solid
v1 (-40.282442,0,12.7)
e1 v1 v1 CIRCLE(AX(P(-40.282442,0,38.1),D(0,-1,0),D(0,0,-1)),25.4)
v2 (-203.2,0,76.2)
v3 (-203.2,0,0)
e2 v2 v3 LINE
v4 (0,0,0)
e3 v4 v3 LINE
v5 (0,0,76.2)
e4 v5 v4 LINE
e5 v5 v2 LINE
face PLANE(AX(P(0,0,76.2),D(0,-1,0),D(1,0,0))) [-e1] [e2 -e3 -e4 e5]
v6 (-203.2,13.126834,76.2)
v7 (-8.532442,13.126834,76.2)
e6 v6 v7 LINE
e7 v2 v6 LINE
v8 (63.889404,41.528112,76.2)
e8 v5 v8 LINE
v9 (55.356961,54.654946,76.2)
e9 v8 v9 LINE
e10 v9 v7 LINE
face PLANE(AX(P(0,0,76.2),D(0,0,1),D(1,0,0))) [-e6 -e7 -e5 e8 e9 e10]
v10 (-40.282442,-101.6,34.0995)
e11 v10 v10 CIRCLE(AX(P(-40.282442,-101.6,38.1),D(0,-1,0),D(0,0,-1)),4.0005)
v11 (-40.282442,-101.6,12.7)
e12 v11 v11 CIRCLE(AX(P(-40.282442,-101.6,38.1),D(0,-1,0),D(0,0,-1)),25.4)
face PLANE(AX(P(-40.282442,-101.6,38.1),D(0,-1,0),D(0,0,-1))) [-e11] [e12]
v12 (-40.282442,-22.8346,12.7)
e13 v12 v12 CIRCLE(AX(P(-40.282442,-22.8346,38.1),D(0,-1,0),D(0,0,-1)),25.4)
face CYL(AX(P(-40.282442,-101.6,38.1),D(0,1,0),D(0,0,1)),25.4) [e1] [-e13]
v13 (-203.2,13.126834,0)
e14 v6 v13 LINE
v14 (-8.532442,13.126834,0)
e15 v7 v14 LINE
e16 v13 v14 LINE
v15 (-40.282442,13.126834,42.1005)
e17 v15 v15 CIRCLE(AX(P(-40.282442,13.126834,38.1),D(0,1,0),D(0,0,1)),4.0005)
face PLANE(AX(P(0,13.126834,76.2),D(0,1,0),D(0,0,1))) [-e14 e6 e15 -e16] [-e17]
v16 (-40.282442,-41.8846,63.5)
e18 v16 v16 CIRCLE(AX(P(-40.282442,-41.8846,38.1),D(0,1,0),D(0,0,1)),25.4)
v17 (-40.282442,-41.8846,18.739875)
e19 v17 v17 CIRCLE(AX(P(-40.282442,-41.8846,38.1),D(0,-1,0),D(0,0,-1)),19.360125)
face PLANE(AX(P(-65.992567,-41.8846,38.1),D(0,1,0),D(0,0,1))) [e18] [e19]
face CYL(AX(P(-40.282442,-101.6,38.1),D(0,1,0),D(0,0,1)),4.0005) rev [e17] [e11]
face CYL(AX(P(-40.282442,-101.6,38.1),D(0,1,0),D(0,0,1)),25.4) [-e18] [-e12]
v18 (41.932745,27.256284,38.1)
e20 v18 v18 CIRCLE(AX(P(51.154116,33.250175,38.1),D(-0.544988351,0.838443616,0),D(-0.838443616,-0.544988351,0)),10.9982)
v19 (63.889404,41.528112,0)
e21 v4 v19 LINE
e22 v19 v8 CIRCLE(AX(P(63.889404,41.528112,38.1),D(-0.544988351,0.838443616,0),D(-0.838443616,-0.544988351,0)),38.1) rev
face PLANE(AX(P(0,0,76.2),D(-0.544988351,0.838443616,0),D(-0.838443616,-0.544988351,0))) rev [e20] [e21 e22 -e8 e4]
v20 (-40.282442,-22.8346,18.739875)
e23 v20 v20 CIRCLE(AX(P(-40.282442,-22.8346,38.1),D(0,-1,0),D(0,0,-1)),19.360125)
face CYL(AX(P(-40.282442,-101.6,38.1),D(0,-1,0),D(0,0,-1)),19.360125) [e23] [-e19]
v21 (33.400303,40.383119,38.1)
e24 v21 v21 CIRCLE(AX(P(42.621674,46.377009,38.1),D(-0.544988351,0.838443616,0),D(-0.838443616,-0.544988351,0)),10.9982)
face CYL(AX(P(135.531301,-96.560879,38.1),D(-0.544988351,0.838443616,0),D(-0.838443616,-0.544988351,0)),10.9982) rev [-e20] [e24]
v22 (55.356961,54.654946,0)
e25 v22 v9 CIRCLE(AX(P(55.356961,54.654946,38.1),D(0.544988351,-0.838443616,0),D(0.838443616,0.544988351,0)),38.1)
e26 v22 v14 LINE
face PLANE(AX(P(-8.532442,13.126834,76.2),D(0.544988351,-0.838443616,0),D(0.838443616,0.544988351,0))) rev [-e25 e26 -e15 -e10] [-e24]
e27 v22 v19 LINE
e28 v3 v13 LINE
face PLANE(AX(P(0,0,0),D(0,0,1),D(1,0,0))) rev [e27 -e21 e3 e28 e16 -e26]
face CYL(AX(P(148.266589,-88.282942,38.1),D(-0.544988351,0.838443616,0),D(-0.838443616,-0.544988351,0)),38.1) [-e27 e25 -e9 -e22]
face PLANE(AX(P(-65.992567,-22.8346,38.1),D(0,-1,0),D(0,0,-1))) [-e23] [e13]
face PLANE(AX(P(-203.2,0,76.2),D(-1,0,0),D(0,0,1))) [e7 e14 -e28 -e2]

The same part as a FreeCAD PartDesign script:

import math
import FreeCAD as App
import Part
import Sketcher
Q = App.Units.Quantity

doc = App.newDocument("Part")
body = doc.addObject("PartDesign::Body", "Body")

sketch1 = body.newObject("Sketcher::SketchObject", "Sketch")
sketch1.AttachmentSupport = (doc.getObject("XY_Plane"), [""])
sketch1.MapMode = "FlatFace"
sketch1.addGeometry(Part.LineSegment(App.Vector(-9, 13, 0), App.Vector(-203, 13, 0)), False)
sketch1.addGeometry(Part.LineSegment(App.Vector(-203, 13, 0), App.Vector(-203, 0, 0)), False)
sketch1.addGeometry(Part.LineSegment(App.Vector(-203, 0, 0), App.Vector(0, 0, 0)), False)
sketch1.addGeometry(Part.LineSegment(App.Vector(0, 0, 0), App.Vector(128, 83, 0)), False)
sketch1.addGeometry(Part.LineSegment(App.Vector(128, 83, 0), App.Vector(119, 96, 0)), False)
sketch1.addGeometry(Part.LineSegment(App.Vector(119, 96, 0), App.Vector(-9, 13, 0)), False)
sketch1.addConstraint(Sketcher.Constraint("Coincident", 0, 2, 1, 1))
sketch1.addConstraint(Sketcher.Constraint("Coincident", 1, 2, 2, 1))
sketch1.addConstraint(Sketcher.Constraint("Coincident", 2, 2, 3, 1))
sketch1.addConstraint(Sketcher.Constraint("Coincident", 3, 2, 4, 1))
sketch1.addConstraint(Sketcher.Constraint("Coincident", 4, 2, 5, 1))
sketch1.addConstraint(Sketcher.Constraint("Coincident", 5, 2, 0, 1))
sketch1.addConstraint(Sketcher.Constraint("Horizontal", 0))
sketch1.addConstraint(Sketcher.Constraint("Vertical", 1))
sketch1.addConstraint(Sketcher.Constraint("Horizontal", 2))
sketch1.addConstraint(Sketcher.Constraint("Coincident", 2, 2, -1, 1))
sketch1.addConstraint(Sketcher.Constraint("Perpendicular", 3, 4))
sketch1.addConstraint(Sketcher.Constraint("Perpendicular", 4, 5))
sketch1.addConstraint(Sketcher.Constraint("Equal", 3, 5))
sketch1.addConstraint(Sketcher.Constraint("DistanceX", 2, 1, 2, 2, Q("8 in")))
sketch1.addConstraint(Sketcher.Constraint("Distance", 3, Q("6 in")))
sketch1.addConstraint(Sketcher.Constraint("Distance", 4, 15.656192))
sketch1.addConstraint(Sketcher.Constraint("DistanceX", 0, 2, 0, 1, 194.667558))
pad1 = body.newObject("PartDesign::Pad", "Pad")
pad1.Profile = sketch1
pad1.Length = Q("3 in")

sketch2 = body.newObject("Sketcher::SketchObject", "Sketch001")
sketch2.AttachmentSupport = (doc.getObject("XZ_Plane"), [""])
sketch2.MapMode = "FlatFace"
sketch2.addGeometry(Part.Circle(App.Vector(-40.3, 38.1, 0), App.Vector(0, 0, 1), 25.4), False)
sketch2.addGeometry(Part.Circle(App.Vector(-40.3, 38.1, 0), App.Vector(0, 0, 1), 4), False)
sketch2.addConstraint(Sketcher.Constraint("Coincident", 1, 3, 0, 3))
sketch2.addConstraint(Sketcher.Constraint("Diameter", 0, Q("2 in")))
sketch2.addConstraint(Sketcher.Constraint("Diameter", 1, Q("0.315 in")))
sketch2.addConstraint(Sketcher.Constraint("DistanceY", -1, 1, 0, 3, Q("1.5 in")))
sketch2.addConstraint(Sketcher.Constraint("DistanceX", 0, 3, -1, 1, 40.282442))
pad2 = body.newObject("PartDesign::Pad", "Pad001")
pad2.Profile = sketch2
pad2.Length = Q("4 in")

sketch3 = body.newObject("Sketcher::SketchObject", "Sketch002")
sketch3.AttachmentSupport = (doc.getObject("XY_Plane"), [""])
sketch3.MapMode = "FlatFace"
sketch3.AttachmentOffset = App.Placement(App.Vector(0, 0, 1.5 * 25.4), App.Rotation())
sketch3.addGeometry(Part.LineSegment(App.Vector(-66, -23, 0), App.Vector(-66, -42, 0)), False)
sketch3.addGeometry(Part.LineSegment(App.Vector(-66, -42, 0), App.Vector(-60, -42, 0)), False)
sketch3.addGeometry(Part.LineSegment(App.Vector(-60, -42, 0), App.Vector(-60, -23, 0)), False)
sketch3.addGeometry(Part.LineSegment(App.Vector(-60, -23, 0), App.Vector(-66, -23, 0)), False)
sketch3.addGeometry(Part.LineSegment(App.Vector(-40, -42, 0), App.Vector(-40, -23, 0)), True)
sketch3.addConstraint(Sketcher.Constraint("Coincident", 0, 2, 1, 1))
sketch3.addConstraint(Sketcher.Constraint("Coincident", 1, 2, 2, 1))
sketch3.addConstraint(Sketcher.Constraint("Coincident", 2, 2, 3, 1))
sketch3.addConstraint(Sketcher.Constraint("Coincident", 3, 2, 0, 1))
sketch3.addConstraint(Sketcher.Constraint("Vertical", 0))
sketch3.addConstraint(Sketcher.Constraint("Horizontal", 1))
sketch3.addConstraint(Sketcher.Constraint("Vertical", 2))
sketch3.addConstraint(Sketcher.Constraint("Horizontal", 3))
sketch3.addConstraint(Sketcher.Constraint("Vertical", 4))
sketch3.addConstraint(Sketcher.Constraint("Horizontal", 1, 2, 4, 1))
sketch3.addConstraint(Sketcher.Constraint("Horizontal", 3, 2, 4, 2))
sketch3.addConstraint(Sketcher.Constraint("DistanceX", 1, 1, 1, 2, Q("0.25 in")))
sketch3.addConstraint(Sketcher.Constraint("DistanceY", 0, 2, 0, 1, Q("0.75 in")))
sketch3.addConstraint(Sketcher.Constraint("DistanceY", 0, 2, -1, 1, Q("1.649 in")))
sketch3.addConstraint(Sketcher.Constraint("DistanceX", 0, 2, -1, 1, 65.992567))
sketch3.addConstraint(Sketcher.Constraint("DistanceX", 4, 1, -1, 1, 40.282442))
groove = body.newObject("PartDesign::Groove", "Groove")
groove.Profile = sketch3
groove.ReferenceAxis = (sketch3, ["Axis0"])
groove.Angle = 360

sketch4 = body.newObject("Sketcher::SketchObject", "Sketch003")
sketch4.AttachmentSupport = (doc.getObject("XZ_Plane"), [""])
sketch4.MapMode = "FlatFace"
sketch4.addGeometry(Part.Circle(App.Vector(-40.3, 38.1, 0), App.Vector(0, 0, 1), 4), False)
sketch4.addConstraint(Sketcher.Constraint("Diameter", 0, Q("0.315 in")))
sketch4.addConstraint(Sketcher.Constraint("DistanceY", -1, 1, 0, 3, Q("1.5 in")))
sketch4.addConstraint(Sketcher.Constraint("DistanceX", 0, 3, -1, 1, 40.282442))
pocket1 = body.newObject("PartDesign::Pocket", "Pocket")
pocket1.Profile = sketch4
pocket1.Type = "ThroughAll"

sketch5 = body.newObject("Sketcher::SketchObject", "Sketch004")
sketch5.Placement = App.Placement(App.Vector(-8.532442, 13.126834, 0), App.Rotation(App.Vector(0.838443616, 0.544988351, 0), App.Vector(0, 0, -1), App.Vector(-0.544988351, 0.838443616, 0), "ZXY"))
sketch5.addGeometry(Part.Circle(App.Vector(61, -38, 0), App.Vector(0, 0, 1), 11), False)
sketch5.addConstraint(Sketcher.Constraint("Diameter", 0, Q("0.866 in")))
sketch5.addConstraint(Sketcher.Constraint("DistanceY", 0, 3, -1, 1, Q("1.5 in")))
sketch5.addConstraint(Sketcher.Constraint("DistanceX", -1, 1, 0, 3, Q("2.402 in")))
pocket2 = body.newObject("PartDesign::Pocket", "Pocket001")
pocket2.Profile = sketch5
pocket2.Type = "ThroughAll"

sketch6 = body.newObject("Sketcher::SketchObject", "Sketch005")
sketch6.Placement = App.Placement(App.Vector(-8.532442, 13.126834, 0), App.Rotation(App.Vector(0.838443616, 0.544988351, 0), App.Vector(0, 0, -1), App.Vector(-0.544988351, 0.838443616, 0), "ZXY"))
sketch6.addGeometry(Part.LineSegment(App.Vector(152, 0, 0), App.Vector(76, 0, 0)), False)
sketch6.addGeometry(Part.ArcOfCircle(Part.Circle(App.Vector(76, -38, 0), App.Vector(0, 0, 1), 38), math.radians(-90), math.radians(90)), False)
sketch6.addGeometry(Part.LineSegment(App.Vector(76, -76, 0), App.Vector(152, -76, 0)), False)
sketch6.addGeometry(Part.LineSegment(App.Vector(152, -76, 0), App.Vector(152, 0, 0)), False)
sketch6.addConstraint(Sketcher.Constraint("Tangent", 0, 2, 1, 2))
sketch6.addConstraint(Sketcher.Constraint("Tangent", 1, 1, 2, 1))
sketch6.addConstraint(Sketcher.Constraint("Coincident", 2, 2, 3, 1))
sketch6.addConstraint(Sketcher.Constraint("Coincident", 3, 2, 0, 1))
sketch6.addConstraint(Sketcher.Constraint("Horizontal", 0))
sketch6.addConstraint(Sketcher.Constraint("Horizontal", 2))
sketch6.addConstraint(Sketcher.Constraint("Vertical", 3))
sketch6.addConstraint(Sketcher.Constraint("PointOnObject", 0, 2, -1))
sketch6.addConstraint(Sketcher.Constraint("Equal", 2, 3))
sketch6.addConstraint(Sketcher.Constraint("Radius", 1, Q("1.5 in")))
sketch6.addConstraint(Sketcher.Constraint("DistanceX", -1, 1, 1, 3, Q("3 in")))
pocket3 = body.newObject("PartDesign::Pocket", "Pocket002")
pocket3.Profile = sketch6
pocket3.Type = "ThroughAll"

doc.recompute()
